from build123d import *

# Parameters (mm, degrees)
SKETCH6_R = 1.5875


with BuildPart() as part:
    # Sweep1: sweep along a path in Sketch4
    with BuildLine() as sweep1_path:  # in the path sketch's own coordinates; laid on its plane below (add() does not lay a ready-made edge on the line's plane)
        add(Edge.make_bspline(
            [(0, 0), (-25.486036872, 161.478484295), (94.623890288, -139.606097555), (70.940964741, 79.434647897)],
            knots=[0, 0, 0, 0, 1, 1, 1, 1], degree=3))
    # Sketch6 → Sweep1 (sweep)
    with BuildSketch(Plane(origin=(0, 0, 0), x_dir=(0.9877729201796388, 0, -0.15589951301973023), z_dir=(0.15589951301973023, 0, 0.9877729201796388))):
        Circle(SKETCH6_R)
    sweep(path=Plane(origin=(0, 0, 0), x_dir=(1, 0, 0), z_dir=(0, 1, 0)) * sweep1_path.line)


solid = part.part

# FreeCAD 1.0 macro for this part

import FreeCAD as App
import Part
import Sketcher
Q = App.Units.Quantity

doc = App.newDocument("Part")
body = doc.addObject("PartDesign::Body", "Body")

# Sketch on an angled plane
sketch1 = doc.addObject("Sketcher::SketchObject", "Sketch")
body.addObject(sketch1)
sketch1.Placement = App.Placement(App.Vector(0, 0, 0), App.Rotation(App.Vector(0.98777292, 0, -0.155899513), App.Vector(0, 1, 0), App.Vector(0.155899513, 0, 0.98777292), "ZXY"))
sketch1.addGeometry(Part.Circle(App.Vector(0, 0, 0), App.Vector(0, 0, 1), 1.6), False)
sketch1.addConstraint(Sketcher.Constraint("Coincident", 0, 3, -1, 1))
sketch1.addConstraint(Sketcher.Constraint("Diameter", 0, Q("0.125 in")))

# Sketch on XZ plane
sketch2 = doc.addObject("Sketcher::SketchObject", "Sketch001")
body.addObject(sketch2)
sketch2.AttachmentSupport = (doc.XZ_Plane, [""])
sketch2.MapMode = "FlatFace"
sketch2.addGeometry(Part.BSplineCurve([App.Vector(0, 0, 0), App.Vector(-25.486037, -161.478484, 0), App.Vector(94.62389, 139.606098, 0), App.Vector(70.940965, -79.434648, 0)], [4, 4], [0, 1], False, 3, [1, 1, 1, 1], False), False)
sketch2.addConstraint(Sketcher.Constraint("Block", 0))
doc.recompute()

additivepipe = doc.addObject("PartDesign::AdditivePipe", "AdditivePipe")
body.addObject(additivepipe)
additivepipe.Profile = sketch1
additivepipe.Spine = (sketch2, ["Edge1"])

doc.recompute()
